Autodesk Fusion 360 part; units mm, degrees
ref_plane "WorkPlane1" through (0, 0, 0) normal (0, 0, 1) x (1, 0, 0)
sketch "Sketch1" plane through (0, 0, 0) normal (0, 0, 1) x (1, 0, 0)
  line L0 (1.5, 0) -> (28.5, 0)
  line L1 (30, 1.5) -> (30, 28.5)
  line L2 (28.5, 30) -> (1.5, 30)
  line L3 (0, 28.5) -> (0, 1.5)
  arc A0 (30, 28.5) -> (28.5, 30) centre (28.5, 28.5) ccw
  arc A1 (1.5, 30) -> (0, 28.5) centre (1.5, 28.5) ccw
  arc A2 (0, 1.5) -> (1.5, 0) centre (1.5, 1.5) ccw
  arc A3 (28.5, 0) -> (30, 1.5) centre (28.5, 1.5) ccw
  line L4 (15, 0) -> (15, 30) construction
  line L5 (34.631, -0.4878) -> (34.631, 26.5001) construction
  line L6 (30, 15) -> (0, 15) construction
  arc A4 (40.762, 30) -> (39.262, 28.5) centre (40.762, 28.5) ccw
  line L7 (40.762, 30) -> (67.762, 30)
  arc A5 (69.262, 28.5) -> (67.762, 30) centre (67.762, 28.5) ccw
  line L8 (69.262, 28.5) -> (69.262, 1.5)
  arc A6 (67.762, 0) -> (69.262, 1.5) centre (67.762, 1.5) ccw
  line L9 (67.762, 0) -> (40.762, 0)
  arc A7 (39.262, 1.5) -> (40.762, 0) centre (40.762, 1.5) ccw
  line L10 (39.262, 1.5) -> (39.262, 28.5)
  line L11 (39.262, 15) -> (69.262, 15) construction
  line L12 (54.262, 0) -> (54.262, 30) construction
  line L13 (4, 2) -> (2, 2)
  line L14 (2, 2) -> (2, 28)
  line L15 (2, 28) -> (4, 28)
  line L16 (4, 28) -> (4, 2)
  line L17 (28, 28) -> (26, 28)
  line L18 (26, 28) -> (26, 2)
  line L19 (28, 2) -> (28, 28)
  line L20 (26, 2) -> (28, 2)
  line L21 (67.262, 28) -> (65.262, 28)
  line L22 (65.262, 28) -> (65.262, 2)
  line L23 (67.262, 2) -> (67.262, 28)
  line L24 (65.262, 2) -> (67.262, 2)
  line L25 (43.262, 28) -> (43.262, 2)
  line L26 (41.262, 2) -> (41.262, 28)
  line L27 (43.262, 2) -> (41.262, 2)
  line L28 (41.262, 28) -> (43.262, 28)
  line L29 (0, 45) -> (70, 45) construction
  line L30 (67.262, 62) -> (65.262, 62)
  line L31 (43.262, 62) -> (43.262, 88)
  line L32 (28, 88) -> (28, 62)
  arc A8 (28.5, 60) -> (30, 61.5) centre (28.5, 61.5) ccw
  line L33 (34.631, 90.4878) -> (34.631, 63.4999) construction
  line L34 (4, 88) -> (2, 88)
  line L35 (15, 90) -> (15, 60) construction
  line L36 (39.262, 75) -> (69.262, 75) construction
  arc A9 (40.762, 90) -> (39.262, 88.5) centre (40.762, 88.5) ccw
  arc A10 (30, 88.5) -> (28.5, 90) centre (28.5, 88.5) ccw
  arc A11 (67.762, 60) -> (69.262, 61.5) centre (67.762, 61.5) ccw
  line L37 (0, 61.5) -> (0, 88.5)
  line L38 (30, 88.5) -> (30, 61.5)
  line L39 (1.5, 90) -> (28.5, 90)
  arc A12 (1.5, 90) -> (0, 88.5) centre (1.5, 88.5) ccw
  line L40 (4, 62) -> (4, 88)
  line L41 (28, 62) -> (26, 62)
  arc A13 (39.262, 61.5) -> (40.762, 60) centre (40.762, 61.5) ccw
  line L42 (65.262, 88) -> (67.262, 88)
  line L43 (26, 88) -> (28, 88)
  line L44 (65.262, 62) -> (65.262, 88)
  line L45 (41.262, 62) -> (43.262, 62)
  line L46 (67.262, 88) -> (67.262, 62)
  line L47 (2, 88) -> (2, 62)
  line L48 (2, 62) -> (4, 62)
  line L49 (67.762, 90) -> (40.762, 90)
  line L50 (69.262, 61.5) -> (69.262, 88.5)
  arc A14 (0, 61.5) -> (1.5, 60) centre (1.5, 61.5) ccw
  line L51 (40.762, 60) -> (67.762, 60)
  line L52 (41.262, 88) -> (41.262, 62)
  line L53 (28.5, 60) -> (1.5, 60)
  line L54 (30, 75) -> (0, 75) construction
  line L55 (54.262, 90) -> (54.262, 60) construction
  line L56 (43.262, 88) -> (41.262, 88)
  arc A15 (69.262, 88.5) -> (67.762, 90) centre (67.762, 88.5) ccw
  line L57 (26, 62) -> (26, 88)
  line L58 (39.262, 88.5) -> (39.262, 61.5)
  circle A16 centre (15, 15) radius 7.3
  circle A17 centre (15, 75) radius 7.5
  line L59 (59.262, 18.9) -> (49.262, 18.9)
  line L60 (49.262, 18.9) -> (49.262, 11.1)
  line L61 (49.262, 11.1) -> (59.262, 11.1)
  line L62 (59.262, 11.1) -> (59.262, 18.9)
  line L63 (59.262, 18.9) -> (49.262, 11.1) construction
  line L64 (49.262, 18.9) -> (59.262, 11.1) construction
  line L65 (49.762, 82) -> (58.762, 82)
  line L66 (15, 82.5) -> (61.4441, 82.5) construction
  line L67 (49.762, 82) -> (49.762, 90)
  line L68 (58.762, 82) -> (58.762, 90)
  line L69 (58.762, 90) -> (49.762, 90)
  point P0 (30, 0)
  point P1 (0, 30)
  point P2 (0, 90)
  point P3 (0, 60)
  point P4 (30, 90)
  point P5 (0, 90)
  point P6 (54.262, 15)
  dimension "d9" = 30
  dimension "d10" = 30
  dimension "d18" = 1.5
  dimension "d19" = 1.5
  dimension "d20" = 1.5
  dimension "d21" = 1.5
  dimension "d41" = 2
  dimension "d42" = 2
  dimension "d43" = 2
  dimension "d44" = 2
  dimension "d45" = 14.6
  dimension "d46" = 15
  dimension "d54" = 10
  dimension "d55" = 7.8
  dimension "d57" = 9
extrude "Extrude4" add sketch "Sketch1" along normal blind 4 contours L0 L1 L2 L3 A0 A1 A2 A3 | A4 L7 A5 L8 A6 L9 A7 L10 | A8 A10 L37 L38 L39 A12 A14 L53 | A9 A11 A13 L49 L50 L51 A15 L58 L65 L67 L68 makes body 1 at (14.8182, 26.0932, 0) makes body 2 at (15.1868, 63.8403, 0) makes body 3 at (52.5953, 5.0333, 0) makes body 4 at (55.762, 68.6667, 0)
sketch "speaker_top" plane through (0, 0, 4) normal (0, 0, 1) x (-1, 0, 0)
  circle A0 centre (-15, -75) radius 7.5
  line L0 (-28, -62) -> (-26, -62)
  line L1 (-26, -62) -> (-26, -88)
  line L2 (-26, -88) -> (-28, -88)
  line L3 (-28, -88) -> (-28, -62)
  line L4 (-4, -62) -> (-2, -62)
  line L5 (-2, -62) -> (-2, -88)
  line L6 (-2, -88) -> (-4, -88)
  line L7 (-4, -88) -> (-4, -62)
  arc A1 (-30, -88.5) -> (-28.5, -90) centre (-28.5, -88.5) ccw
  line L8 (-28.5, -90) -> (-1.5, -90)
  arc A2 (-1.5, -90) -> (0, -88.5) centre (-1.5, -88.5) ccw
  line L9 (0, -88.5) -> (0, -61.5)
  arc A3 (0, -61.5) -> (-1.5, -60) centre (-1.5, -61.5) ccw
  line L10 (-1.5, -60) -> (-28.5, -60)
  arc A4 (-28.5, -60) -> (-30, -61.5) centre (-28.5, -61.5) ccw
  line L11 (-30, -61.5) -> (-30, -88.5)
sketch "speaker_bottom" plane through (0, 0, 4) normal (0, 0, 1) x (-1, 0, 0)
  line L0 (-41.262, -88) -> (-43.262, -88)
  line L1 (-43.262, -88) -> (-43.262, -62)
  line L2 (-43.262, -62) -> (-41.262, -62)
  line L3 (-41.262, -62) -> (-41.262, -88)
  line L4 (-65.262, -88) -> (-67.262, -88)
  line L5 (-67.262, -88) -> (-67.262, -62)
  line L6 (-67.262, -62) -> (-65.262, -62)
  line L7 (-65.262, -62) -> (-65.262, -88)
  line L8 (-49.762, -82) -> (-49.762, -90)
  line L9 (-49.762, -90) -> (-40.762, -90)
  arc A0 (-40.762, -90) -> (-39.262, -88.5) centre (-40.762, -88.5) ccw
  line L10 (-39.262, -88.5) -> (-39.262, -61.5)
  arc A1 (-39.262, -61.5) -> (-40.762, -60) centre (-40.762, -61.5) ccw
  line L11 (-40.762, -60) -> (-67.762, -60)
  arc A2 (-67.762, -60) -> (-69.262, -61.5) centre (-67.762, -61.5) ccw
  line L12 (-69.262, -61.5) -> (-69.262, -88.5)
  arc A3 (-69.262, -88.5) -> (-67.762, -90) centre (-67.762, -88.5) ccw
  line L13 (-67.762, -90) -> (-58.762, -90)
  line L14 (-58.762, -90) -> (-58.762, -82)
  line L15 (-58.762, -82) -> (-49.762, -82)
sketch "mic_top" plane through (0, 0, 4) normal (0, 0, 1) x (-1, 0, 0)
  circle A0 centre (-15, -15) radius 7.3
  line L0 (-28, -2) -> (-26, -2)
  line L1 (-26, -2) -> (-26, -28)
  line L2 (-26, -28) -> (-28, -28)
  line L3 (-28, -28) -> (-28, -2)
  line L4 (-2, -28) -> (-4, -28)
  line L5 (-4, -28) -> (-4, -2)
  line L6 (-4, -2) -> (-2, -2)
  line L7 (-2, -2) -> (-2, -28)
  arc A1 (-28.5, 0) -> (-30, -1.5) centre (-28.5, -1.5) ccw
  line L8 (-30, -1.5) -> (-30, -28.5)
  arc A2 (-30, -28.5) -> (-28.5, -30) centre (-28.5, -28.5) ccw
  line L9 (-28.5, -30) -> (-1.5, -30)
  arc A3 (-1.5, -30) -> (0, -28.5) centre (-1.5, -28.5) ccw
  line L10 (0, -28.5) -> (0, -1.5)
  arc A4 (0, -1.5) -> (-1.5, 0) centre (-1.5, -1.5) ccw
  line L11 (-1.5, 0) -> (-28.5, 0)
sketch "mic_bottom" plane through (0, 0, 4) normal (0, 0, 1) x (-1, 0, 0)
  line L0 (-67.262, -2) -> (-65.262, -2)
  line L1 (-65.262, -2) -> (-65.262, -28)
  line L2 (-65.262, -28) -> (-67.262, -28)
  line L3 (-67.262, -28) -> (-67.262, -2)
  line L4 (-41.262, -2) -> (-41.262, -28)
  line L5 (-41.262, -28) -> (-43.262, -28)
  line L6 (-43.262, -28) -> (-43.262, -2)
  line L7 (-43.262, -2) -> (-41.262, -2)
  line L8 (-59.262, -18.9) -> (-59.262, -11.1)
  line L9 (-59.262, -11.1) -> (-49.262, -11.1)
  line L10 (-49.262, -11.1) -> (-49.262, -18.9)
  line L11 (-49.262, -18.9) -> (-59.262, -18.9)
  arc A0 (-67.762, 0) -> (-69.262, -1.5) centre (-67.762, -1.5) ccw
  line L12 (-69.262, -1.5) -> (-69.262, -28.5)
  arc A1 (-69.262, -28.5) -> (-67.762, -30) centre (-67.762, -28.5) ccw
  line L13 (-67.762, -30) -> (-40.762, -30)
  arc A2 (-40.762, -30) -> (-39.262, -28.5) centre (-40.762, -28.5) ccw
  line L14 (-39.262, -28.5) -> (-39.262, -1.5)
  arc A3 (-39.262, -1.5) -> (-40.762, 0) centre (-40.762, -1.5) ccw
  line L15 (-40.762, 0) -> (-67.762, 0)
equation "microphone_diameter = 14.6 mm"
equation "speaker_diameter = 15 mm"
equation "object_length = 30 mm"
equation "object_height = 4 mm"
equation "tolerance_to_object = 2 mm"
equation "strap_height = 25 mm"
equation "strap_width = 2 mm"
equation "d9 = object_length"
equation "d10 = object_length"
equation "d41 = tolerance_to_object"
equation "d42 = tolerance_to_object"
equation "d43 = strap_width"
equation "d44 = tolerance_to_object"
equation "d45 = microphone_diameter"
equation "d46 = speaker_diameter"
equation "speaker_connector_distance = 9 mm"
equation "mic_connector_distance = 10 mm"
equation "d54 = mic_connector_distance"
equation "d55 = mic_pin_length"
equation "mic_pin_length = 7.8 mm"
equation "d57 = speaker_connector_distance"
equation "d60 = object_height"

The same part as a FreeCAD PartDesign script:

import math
import FreeCAD as App
import Part
import Sketcher

doc = App.newDocument("Part")
params = doc.addObject("Spreadsheet::Sheet", "Params")
for row, (alias, value) in enumerate([
    ("sketch1_diameter", "15 mm"),
    ("sketch1_diameter2", "14.6 mm"),
    ("sketch1_radius", "1.5 mm"),
    ("sketch1_width", "2 mm"),
    ("sketch1_width2", "10 mm"),
    ("pad1_length", "4 mm"),
], start=1):
    params.set(f"A{row}", alias)
    params.set(f"B{row}", "=" + value)
    params.setAlias(f"B{row}", alias)

body = doc.addObject("PartDesign::Body", "Body")
body.AllowCompound = True

sketch1 = body.newObject("Sketcher::SketchObject", "Sketch")
sketch1.AttachmentSupport = (doc.getObject("XY_Plane"), [""])
sketch1.MapMode = "FlatFace"
sketch1.addGeometry(Part.ArcOfCircle(Part.Circle(App.Vector(1.5, 1.5, 0), App.Vector(0, 0, 1), 1.5), math.radians(180), math.radians(270)), False)
sketch1.addGeometry(Part.LineSegment(App.Vector(1.5, 0, 0), App.Vector(28.5, 0, 0)), False)
sketch1.addGeometry(Part.ArcOfCircle(Part.Circle(App.Vector(28.5, 1.5, 0), App.Vector(0, 0, 1), 1.5), math.radians(-90), math.radians(0)), False)
sketch1.addGeometry(Part.LineSegment(App.Vector(30, 1.5, 0), App.Vector(30, 28.5, 0)), False)
sketch1.addGeometry(Part.ArcOfCircle(Part.Circle(App.Vector(28.5, 28.5, 0), App.Vector(0, 0, 1), 1.5), math.radians(0), math.radians(90)), False)
sketch1.addGeometry(Part.LineSegment(App.Vector(28.5, 30, 0), App.Vector(1.5, 30, 0)), False)
sketch1.addGeometry(Part.ArcOfCircle(Part.Circle(App.Vector(1.5, 28.5, 0), App.Vector(0, 0, 1), 1.5), math.radians(90), math.radians(180)), False)
sketch1.addGeometry(Part.LineSegment(App.Vector(0, 28.5, 0), App.Vector(0, 1.5, 0)), False)
sketch1.addGeometry(Part.LineSegment(App.Vector(4, 28, 0), App.Vector(4, 2, 0)), False)
sketch1.addGeometry(Part.LineSegment(App.Vector(4, 2, 0), App.Vector(2, 2, 0)), False)
sketch1.addGeometry(Part.LineSegment(App.Vector(2, 2, 0), App.Vector(2, 28, 0)), False)
sketch1.addGeometry(Part.LineSegment(App.Vector(2, 28, 0), App.Vector(4, 28, 0)), False)
sketch1.addGeometry(Part.Circle(App.Vector(15, 15, 0), App.Vector(0, 0, 1), 7.3), False)
sketch1.addGeometry(Part.LineSegment(App.Vector(26, 28, 0), App.Vector(28, 28, 0)), False)
sketch1.addGeometry(Part.LineSegment(App.Vector(28, 28, 0), App.Vector(28, 2, 0)), False)
sketch1.addGeometry(Part.LineSegment(App.Vector(28, 2, 0), App.Vector(26, 2, 0)), False)
sketch1.addGeometry(Part.LineSegment(App.Vector(26, 2, 0), App.Vector(26, 28, 0)), False)
sketch1.addGeometry(Part.LineSegment(App.Vector(67.8, 30, 0), App.Vector(40.8, 30, 0)), False)
sketch1.addGeometry(Part.ArcOfCircle(Part.Circle(App.Vector(40.8, 28.5, 0), App.Vector(0, 0, 1), 1.5), math.radians(90), math.radians(180)), False)
sketch1.addGeometry(Part.LineSegment(App.Vector(39.3, 28.5, 0), App.Vector(39.3, 1.5, 0)), False)
sketch1.addGeometry(Part.ArcOfCircle(Part.Circle(App.Vector(40.8, 1.5, 0), App.Vector(0, 0, 1), 1.5), math.radians(180), math.radians(270)), False)
sketch1.addGeometry(Part.LineSegment(App.Vector(40.8, 0, 0), App.Vector(67.8, 0, 0)), False)
sketch1.addGeometry(Part.ArcOfCircle(Part.Circle(App.Vector(67.8, 1.5, 0), App.Vector(0, 0, 1), 1.5), math.radians(-90), math.radians(0)), False)
sketch1.addGeometry(Part.LineSegment(App.Vector(69.3, 1.5, 0), App.Vector(69.3, 28.5, 0)), False)
sketch1.addGeometry(Part.ArcOfCircle(Part.Circle(App.Vector(67.8, 28.5, 0), App.Vector(0, 0, 1), 1.5), math.radians(0), math.radians(90)), False)
sketch1.addGeometry(Part.LineSegment(App.Vector(41.3, 28, 0), App.Vector(43.3, 28, 0)), False)
sketch1.addGeometry(Part.LineSegment(App.Vector(43.3, 28, 0), App.Vector(43.3, 2, 0)), False)
sketch1.addGeometry(Part.LineSegment(App.Vector(43.3, 2, 0), App.Vector(41.3, 2, 0)), False)
sketch1.addGeometry(Part.LineSegment(App.Vector(41.3, 2, 0), App.Vector(41.3, 28, 0)), False)
sketch1.addGeometry(Part.LineSegment(App.Vector(49.3, 18.9, 0), App.Vector(59.3, 18.9, 0)), False)
sketch1.addGeometry(Part.LineSegment(App.Vector(59.3, 18.9, 0), App.Vector(59.3, 11.1, 0)), False)
sketch1.addGeometry(Part.LineSegment(App.Vector(59.3, 11.1, 0), App.Vector(49.3, 11.1, 0)), False)
sketch1.addGeometry(Part.LineSegment(App.Vector(49.3, 11.1, 0), App.Vector(49.3, 18.9, 0)), False)
sketch1.addGeometry(Part.LineSegment(App.Vector(65.3, 28, 0), App.Vector(67.3, 28, 0)), False)
sketch1.addGeometry(Part.LineSegment(App.Vector(67.3, 28, 0), App.Vector(67.3, 2, 0)), False)
sketch1.addGeometry(Part.LineSegment(App.Vector(67.3, 2, 0), App.Vector(65.3, 2, 0)), False)
sketch1.addGeometry(Part.LineSegment(App.Vector(65.3, 2, 0), App.Vector(65.3, 28, 0)), False)
sketch1.addGeometry(Part.LineSegment(App.Vector(1.5, 60, 0), App.Vector(28.5, 60, 0)), False)
sketch1.addGeometry(Part.ArcOfCircle(Part.Circle(App.Vector(28.5, 61.5, 0), App.Vector(0, 0, 1), 1.5), math.radians(-90), math.radians(0)), False)
sketch1.addGeometry(Part.LineSegment(App.Vector(30, 61.5, 0), App.Vector(30, 88.5, 0)), False)
sketch1.addGeometry(Part.ArcOfCircle(Part.Circle(App.Vector(28.5, 88.5, 0), App.Vector(0, 0, 1), 1.5), math.radians(0), math.radians(90)), False)
sketch1.addGeometry(Part.LineSegment(App.Vector(28.5, 90, 0), App.Vector(1.5, 90, 0)), False)
sketch1.addGeometry(Part.ArcOfCircle(Part.Circle(App.Vector(1.5, 88.5, 0), App.Vector(0, 0, 1), 1.5), math.radians(90), math.radians(180)), False)
sketch1.addGeometry(Part.LineSegment(App.Vector(0, 88.5, 0), App.Vector(0, 61.5, 0)), False)
sketch1.addGeometry(Part.ArcOfCircle(Part.Circle(App.Vector(1.5, 61.5, 0), App.Vector(0, 0, 1), 1.5), math.radians(180), math.radians(270)), False)
sketch1.addGeometry(Part.LineSegment(App.Vector(2, 88, 0), App.Vector(4, 88, 0)), False)
sketch1.addGeometry(Part.LineSegment(App.Vector(4, 88, 0), App.Vector(4, 62, 0)), False)
sketch1.addGeometry(Part.LineSegment(App.Vector(4, 62, 0), App.Vector(2, 62, 0)), False)
sketch1.addGeometry(Part.LineSegment(App.Vector(2, 62, 0), App.Vector(2, 88, 0)), False)
sketch1.addGeometry(Part.Circle(App.Vector(15, 75, 0), App.Vector(0, 0, 1), 7.5), False)
sketch1.addGeometry(Part.LineSegment(App.Vector(26, 88, 0), App.Vector(28, 88, 0)), False)
sketch1.addGeometry(Part.LineSegment(App.Vector(28, 88, 0), App.Vector(28, 62, 0)), False)
sketch1.addGeometry(Part.LineSegment(App.Vector(28, 62, 0), App.Vector(26, 62, 0)), False)
sketch1.addGeometry(Part.LineSegment(App.Vector(26, 62, 0), App.Vector(26, 88, 0)), False)
sketch1.addGeometry(Part.LineSegment(App.Vector(49.8, 90, 0), App.Vector(40.8, 90, 0)), False)
sketch1.addGeometry(Part.ArcOfCircle(Part.Circle(App.Vector(40.8, 88.5, 0), App.Vector(0, 0, 1), 1.5), math.radians(90), math.radians(180)), False)
sketch1.addGeometry(Part.LineSegment(App.Vector(39.3, 88.5, 0), App.Vector(39.3, 61.5, 0)), False)
sketch1.addGeometry(Part.ArcOfCircle(Part.Circle(App.Vector(40.8, 61.5, 0), App.Vector(0, 0, 1), 1.5), math.radians(180), math.radians(270)), False)
sketch1.addGeometry(Part.LineSegment(App.Vector(40.8, 60, 0), App.Vector(67.8, 60, 0)), False)
sketch1.addGeometry(Part.ArcOfCircle(Part.Circle(App.Vector(67.8, 61.5, 0), App.Vector(0, 0, 1), 1.5), math.radians(-90), math.radians(0)), False)
sketch1.addGeometry(Part.LineSegment(App.Vector(69.3, 61.5, 0), App.Vector(69.3, 88.5, 0)), False)
sketch1.addGeometry(Part.ArcOfCircle(Part.Circle(App.Vector(67.8, 88.5, 0), App.Vector(0, 0, 1), 1.5), math.radians(0), math.radians(90)), False)
sketch1.addGeometry(Part.LineSegment(App.Vector(67.8, 90, 0), App.Vector(58.8, 90, 0)), False)
sketch1.addGeometry(Part.LineSegment(App.Vector(58.8, 90, 0), App.Vector(58.8, 82, 0)), False)
sketch1.addGeometry(Part.LineSegment(App.Vector(58.8, 82, 0), App.Vector(49.8, 82, 0)), False)
sketch1.addGeometry(Part.LineSegment(App.Vector(49.8, 82, 0), App.Vector(49.8, 90, 0)), False)
sketch1.addGeometry(Part.LineSegment(App.Vector(43.3, 88, 0), App.Vector(43.3, 62, 0)), False)
sketch1.addGeometry(Part.LineSegment(App.Vector(43.3, 62, 0), App.Vector(41.3, 62, 0)), False)
sketch1.addGeometry(Part.LineSegment(App.Vector(41.3, 62, 0), App.Vector(41.3, 88, 0)), False)
sketch1.addGeometry(Part.LineSegment(App.Vector(41.3, 88, 0), App.Vector(43.3, 88, 0)), False)
sketch1.addGeometry(Part.LineSegment(App.Vector(67.3, 88, 0), App.Vector(67.3, 62, 0)), False)
sketch1.addGeometry(Part.LineSegment(App.Vector(67.3, 62, 0), App.Vector(65.3, 62, 0)), False)
sketch1.addGeometry(Part.LineSegment(App.Vector(65.3, 62, 0), App.Vector(65.3, 88, 0)), False)
sketch1.addGeometry(Part.LineSegment(App.Vector(65.3, 88, 0), App.Vector(67.3, 88, 0)), False)
sketch1.addConstraint(Sketcher.Constraint("Tangent", 0, 2, 1, 1))
sketch1.addConstraint(Sketcher.Constraint("Tangent", 1, 2, 2, 1))
sketch1.addConstraint(Sketcher.Constraint("Tangent", 2, 2, 3, 1))
sketch1.addConstraint(Sketcher.Constraint("Tangent", 3, 2, 4, 1))
sketch1.addConstraint(Sketcher.Constraint("Tangent", 4, 2, 5, 1))
sketch1.addConstraint(Sketcher.Constraint("Tangent", 5, 2, 6, 1))
sketch1.addConstraint(Sketcher.Constraint("Tangent", 6, 2, 7, 1))
sketch1.addConstraint(Sketcher.Constraint("Tangent", 7, 2, 0, 1))
sketch1.addConstraint(Sketcher.Constraint("Coincident", 8, 2, 9, 1))
sketch1.addConstraint(Sketcher.Constraint("Coincident", 9, 2, 10, 1))
sketch1.addConstraint(Sketcher.Constraint("Coincident", 10, 2, 11, 1))
sketch1.addConstraint(Sketcher.Constraint("Coincident", 11, 2, 8, 1))
sketch1.addConstraint(Sketcher.Constraint("Coincident", 13, 2, 14, 1))
sketch1.addConstraint(Sketcher.Constraint("Coincident", 14, 2, 15, 1))
sketch1.addConstraint(Sketcher.Constraint("Coincident", 15, 2, 16, 1))
sketch1.addConstraint(Sketcher.Constraint("Coincident", 16, 2, 13, 1))
sketch1.addConstraint(Sketcher.Constraint("Tangent", 17, 2, 18, 1))
sketch1.addConstraint(Sketcher.Constraint("Tangent", 18, 2, 19, 1))
sketch1.addConstraint(Sketcher.Constraint("Tangent", 19, 2, 20, 1))
sketch1.addConstraint(Sketcher.Constraint("Tangent", 20, 2, 21, 1))
sketch1.addConstraint(Sketcher.Constraint("Tangent", 21, 2, 22, 1))
sketch1.addConstraint(Sketcher.Constraint("Tangent", 22, 2, 23, 1))
sketch1.addConstraint(Sketcher.Constraint("Tangent", 23, 2, 24, 1))
sketch1.addConstraint(Sketcher.Constraint("Tangent", 24, 2, 17, 1))
sketch1.addConstraint(Sketcher.Constraint("Coincident", 25, 2, 26, 1))
sketch1.addConstraint(Sketcher.Constraint("Coincident", 26, 2, 27, 1))
sketch1.addConstraint(Sketcher.Constraint("Coincident", 27, 2, 28, 1))
sketch1.addConstraint(Sketcher.Constraint("Coincident", 28, 2, 25, 1))
sketch1.addConstraint(Sketcher.Constraint("Coincident", 29, 2, 30, 1))
sketch1.addConstraint(Sketcher.Constraint("Coincident", 30, 2, 31, 1))
sketch1.addConstraint(Sketcher.Constraint("Coincident", 31, 2, 32, 1))
sketch1.addConstraint(Sketcher.Constraint("Coincident", 32, 2, 29, 1))
sketch1.addConstraint(Sketcher.Constraint("Coincident", 33, 2, 34, 1))
sketch1.addConstraint(Sketcher.Constraint("Coincident", 34, 2, 35, 1))
sketch1.addConstraint(Sketcher.Constraint("Coincident", 35, 2, 36, 1))
sketch1.addConstraint(Sketcher.Constraint("Coincident", 36, 2, 33, 1))
sketch1.addConstraint(Sketcher.Constraint("Tangent", 37, 2, 38, 1))
sketch1.addConstraint(Sketcher.Constraint("Tangent", 38, 2, 39, 1))
sketch1.addConstraint(Sketcher.Constraint("Tangent", 39, 2, 40, 1))
sketch1.addConstraint(Sketcher.Constraint("Tangent", 40, 2, 41, 1))
sketch1.addConstraint(Sketcher.Constraint("Tangent", 41, 2, 42, 1))
sketch1.addConstraint(Sketcher.Constraint("Tangent", 42, 2, 43, 1))
sketch1.addConstraint(Sketcher.Constraint("Tangent", 43, 2, 44, 1))
sketch1.addConstraint(Sketcher.Constraint("Tangent", 44, 2, 37, 1))
sketch1.addConstraint(Sketcher.Constraint("Coincident", 45, 2, 46, 1))
sketch1.addConstraint(Sketcher.Constraint("Coincident", 46, 2, 47, 1))
sketch1.addConstraint(Sketcher.Constraint("Coincident", 47, 2, 48, 1))
sketch1.addConstraint(Sketcher.Constraint("Coincident", 48, 2, 45, 1))
sketch1.addConstraint(Sketcher.Constraint("Coincident", 50, 2, 51, 1))
sketch1.addConstraint(Sketcher.Constraint("Coincident", 51, 2, 52, 1))
sketch1.addConstraint(Sketcher.Constraint("Coincident", 52, 2, 53, 1))
sketch1.addConstraint(Sketcher.Constraint("Coincident", 53, 2, 50, 1))
sketch1.addConstraint(Sketcher.Constraint("Tangent", 54, 2, 55, 1))
sketch1.addConstraint(Sketcher.Constraint("Tangent", 55, 2, 56, 1))
sketch1.addConstraint(Sketcher.Constraint("Tangent", 56, 2, 57, 1))
sketch1.addConstraint(Sketcher.Constraint("Tangent", 57, 2, 58, 1))
sketch1.addConstraint(Sketcher.Constraint("Tangent", 58, 2, 59, 1))
sketch1.addConstraint(Sketcher.Constraint("Tangent", 59, 2, 60, 1))
sketch1.addConstraint(Sketcher.Constraint("Tangent", 60, 2, 61, 1))
sketch1.addConstraint(Sketcher.Constraint("Tangent", 61, 2, 62, 1))
sketch1.addConstraint(Sketcher.Constraint("Coincident", 62, 2, 63, 1))
sketch1.addConstraint(Sketcher.Constraint("Coincident", 63, 2, 64, 1))
sketch1.addConstraint(Sketcher.Constraint("Coincident", 64, 2, 65, 1))
sketch1.addConstraint(Sketcher.Constraint("Coincident", 65, 2, 54, 1))
sketch1.addConstraint(Sketcher.Constraint("Coincident", 66, 2, 67, 1))
sketch1.addConstraint(Sketcher.Constraint("Coincident", 67, 2, 68, 1))
sketch1.addConstraint(Sketcher.Constraint("Coincident", 68, 2, 69, 1))
sketch1.addConstraint(Sketcher.Constraint("Coincident", 69, 2, 66, 1))
sketch1.addConstraint(Sketcher.Constraint("Coincident", 70, 2, 71, 1))
sketch1.addConstraint(Sketcher.Constraint("Coincident", 71, 2, 72, 1))
sketch1.addConstraint(Sketcher.Constraint("Coincident", 72, 2, 73, 1))
sketch1.addConstraint(Sketcher.Constraint("Coincident", 73, 2, 70, 1))
sketch1.addConstraint(Sketcher.Constraint("Horizontal", 1))
sketch1.addConstraint(Sketcher.Constraint("Vertical", 3))
sketch1.addConstraint(Sketcher.Constraint("Horizontal", 5))
sketch1.addConstraint(Sketcher.Constraint("Vertical", 7))
sketch1.addConstraint(Sketcher.Constraint("Vertical", 8))
sketch1.addConstraint(Sketcher.Constraint("Horizontal", 9))
sketch1.addConstraint(Sketcher.Constraint("Vertical", 10))
sketch1.addConstraint(Sketcher.Constraint("Horizontal", 11))
sketch1.addConstraint(Sketcher.Constraint("Horizontal", 13))
sketch1.addConstraint(Sketcher.Constraint("Vertical", 14))
sketch1.addConstraint(Sketcher.Constraint("Horizontal", 15))
sketch1.addConstraint(Sketcher.Constraint("Vertical", 16))
sketch1.addConstraint(Sketcher.Constraint("Horizontal", 17))
sketch1.addConstraint(Sketcher.Constraint("Vertical", 19))
sketch1.addConstraint(Sketcher.Constraint("Horizontal", 21))
sketch1.addConstraint(Sketcher.Constraint("Vertical", 23))
sketch1.addConstraint(Sketcher.Constraint("Horizontal", 25))
sketch1.addConstraint(Sketcher.Constraint("Vertical", 26))
sketch1.addConstraint(Sketcher.Constraint("Horizontal", 27))
sketch1.addConstraint(Sketcher.Constraint("Vertical", 28))
sketch1.addConstraint(Sketcher.Constraint("Horizontal", 29))
sketch1.addConstraint(Sketcher.Constraint("Vertical", 30))
sketch1.addConstraint(Sketcher.Constraint("Horizontal", 31))
sketch1.addConstraint(Sketcher.Constraint("Vertical", 32))
sketch1.addConstraint(Sketcher.Constraint("Horizontal", 33))
sketch1.addConstraint(Sketcher.Constraint("Vertical", 34))
sketch1.addConstraint(Sketcher.Constraint("Horizontal", 35))
sketch1.addConstraint(Sketcher.Constraint("Vertical", 36))
sketch1.addConstraint(Sketcher.Constraint("Horizontal", 37))
sketch1.addConstraint(Sketcher.Constraint("Vertical", 39))
sketch1.addConstraint(Sketcher.Constraint("Horizontal", 41))
sketch1.addConstraint(Sketcher.Constraint("Vertical", 43))
sketch1.addConstraint(Sketcher.Constraint("Horizontal", 45))
sketch1.addConstraint(Sketcher.Constraint("Vertical", 46))
sketch1.addConstraint(Sketcher.Constraint("Horizontal", 47))
sketch1.addConstraint(Sketcher.Constraint("Vertical", 48))
sketch1.addConstraint(Sketcher.Constraint("Horizontal", 50))
sketch1.addConstraint(Sketcher.Constraint("Vertical", 51))
sketch1.addConstraint(Sketcher.Constraint("Horizontal", 52))
sketch1.addConstraint(Sketcher.Constraint("Vertical", 53))
sketch1.addConstraint(Sketcher.Constraint("Horizontal", 54))
sketch1.addConstraint(Sketcher.Constraint("Vertical", 56))
sketch1.addConstraint(Sketcher.Constraint("Horizontal", 58))
sketch1.addConstraint(Sketcher.Constraint("Vertical", 60))
sketch1.addConstraint(Sketcher.Constraint("Horizontal", 62))
sketch1.addConstraint(Sketcher.Constraint("Vertical", 63))
sketch1.addConstraint(Sketcher.Constraint("Horizontal", 64))
sketch1.addConstraint(Sketcher.Constraint("Vertical", 65))
sketch1.addConstraint(Sketcher.Constraint("Vertical", 66))
sketch1.addConstraint(Sketcher.Constraint("Horizontal", 67))
sketch1.addConstraint(Sketcher.Constraint("Vertical", 68))
sketch1.addConstraint(Sketcher.Constraint("Horizontal", 69))
sketch1.addConstraint(Sketcher.Constraint("Vertical", 70))
sketch1.addConstraint(Sketcher.Constraint("Horizontal", 71))
sketch1.addConstraint(Sketcher.Constraint("Vertical", 72))
sketch1.addConstraint(Sketcher.Constraint("Horizontal", 73))
sketch1.addConstraint(Sketcher.Constraint("Equal", 0, 2))
sketch1.addConstraint(Sketcher.Constraint("Equal", 2, 4))
sketch1.addConstraint(Sketcher.Constraint("Equal", 4, 6))
sketch1.addConstraint(Sketcher.Constraint("Equal", 6, 18))
sketch1.addConstraint(Sketcher.Constraint("Equal", 18, 20))
sketch1.addConstraint(Sketcher.Constraint("Equal", 20, 22))
sketch1.addConstraint(Sketcher.Constraint("Equal", 22, 24))
sketch1.addConstraint(Sketcher.Constraint("Equal", 24, 38))
sketch1.addConstraint(Sketcher.Constraint("Equal", 38, 40))
sketch1.addConstraint(Sketcher.Constraint("Equal", 40, 42))
sketch1.addConstraint(Sketcher.Constraint("Equal", 42, 44))
sketch1.addConstraint(Sketcher.Constraint("Equal", 44, 55))
sketch1.addConstraint(Sketcher.Constraint("Equal", 55, 57))
sketch1.addConstraint(Sketcher.Constraint("Equal", 57, 59))
sketch1.addConstraint(Sketcher.Constraint("Equal", 59, 61))
sketch1.addConstraint(Sketcher.Constraint("PointOnObject", 0, 2, -1))
sketch1.addConstraint(Sketcher.Constraint("PointOnObject", 6, 2, -2))
sketch1.addConstraint(Sketcher.Constraint("PointOnObject", 20, 2, -1))
sketch1.addConstraint(Sketcher.Constraint("PointOnObject", 42, 2, -2))
sketch1.addConstraint(Sketcher.Constraint("Horizontal", 6, 3, 18, 3))
sketch1.addConstraint(Sketcher.Constraint("Horizontal", 42, 3, 55, 3))
sketch1.addConstraint(Sketcher.Constraint("Horizontal", 44, 3, 57, 3))
sketch1.addConstraint(Sketcher.Constraint("Horizontal", 55, 3, 61, 3))
sketch1.addConstraint(Sketcher.Constraint("Horizontal", 11, 2, 13, 2))
sketch1.addConstraint(Sketcher.Constraint("Horizontal", 9, 2, 14, 2))
sketch1.addConstraint(Sketcher.Constraint("Horizontal", 16, 2, 25, 2))
sketch1.addConstraint(Sketcher.Constraint("Horizontal", 15, 2, 26, 2))
sketch1.addConstraint(Sketcher.Constraint("Horizontal", 28, 2, 33, 2))
sketch1.addConstraint(Sketcher.Constraint("Horizontal", 27, 2, 34, 2))
sketch1.addConstraint(Sketcher.Constraint("Horizontal", 48, 2, 50, 2))
sketch1.addConstraint(Sketcher.Constraint("Horizontal", 47, 2, 51, 2))
sketch1.addConstraint(Sketcher.Constraint("Horizontal", 52, 2, 66, 2))
sketch1.addConstraint(Sketcher.Constraint("Horizontal", 53, 2, 68, 2))
sketch1.addConstraint(Sketcher.Constraint("Horizontal", 67, 2, 70, 2))
sketch1.addConstraint(Sketcher.Constraint("Horizontal", 69, 2, 72, 2))
sketch1.addConstraint(Sketcher.Constraint("Vertical", 4, 3, 38, 3))
sketch1.addConstraint(Sketcher.Constraint("Vertical", 12, 3, 49, 3))
sketch1.addConstraint(Sketcher.Constraint("Vertical", 20, 3, 55, 3))
sketch1.addConstraint(Sketcher.Constraint("Vertical", 24, 3, 59, 3))
sketch1.addConstraint(Sketcher.Constraint("Vertical", 11, 2, 45, 2))
sketch1.addConstraint(Sketcher.Constraint("Vertical", 10, 2, 47, 2))
sketch1.addConstraint(Sketcher.Constraint("Vertical", 14, 2, 50, 2))
sketch1.addConstraint(Sketcher.Constraint("Vertical", 16, 2, 52, 2))
sketch1.addConstraint(Sketcher.Constraint("Vertical", 26, 2, 66, 2))
sketch1.addConstraint(Sketcher.Constraint("Vertical", 28, 2, 67, 2))
sketch1.addConstraint(Sketcher.Constraint("Vertical", 34, 2, 70, 2))
sketch1.addConstraint(Sketcher.Constraint("Vertical", 36, 2, 71, 2))
sketch1.addConstraint(Sketcher.Constraint("Equal", 11, 13))
sketch1.addConstraint(Sketcher.Constraint("Equal", 5, 17))
sketch1.addConstraint(Sketcher.Constraint("Equal", 15, 25))
sketch1.addConstraint(Sketcher.Constraint("Equal", 27, 33))
sketch1.addConstraint(Sketcher.Constraint("Equal", 54, 62))
sketch1.addConstraint(Sketcher.Constraint("Equal", 62, 64))
sketch1.addConstraint(Sketcher.Constraint("Equal", 58, 3))
sketch1.addConstraint(Sketcher.Constraint("Equal", 23, 39))
sketch1.addConstraint(Sketcher.Constraint("Equal", 36, 46))
sketch1.addConstraint(Sketcher.Constraint("Diameter", 49, 15.0))
sketch1.addConstraint(Sketcher.Constraint("Diameter", 12, 14.6))
sketch1.addConstraint(Sketcher.Constraint("Radius", 0, 1.5))
sketch1.addConstraint(Sketcher.Constraint("DistanceX", 9, 2, 9, 1, 2.0))
sketch1.addConstraint(Sketcher.Constraint("DistanceX", 29, 1, 29, 2, 10.0))
sketch1.addConstraint(Sketcher.Constraint("DistanceX", 54, 2, 54, 1, 9.0))
sketch1.addConstraint(Sketcher.Constraint("DistanceY", 30, 2, 30, 1, 7.8))
sketch1.addConstraint(Sketcher.Constraint("DistanceX", -1, 1, 12, 3, 15.0))
sketch1.addConstraint(Sketcher.Constraint("DistanceY", -1, 1, 12, 3, 15.0))
sketch1.addConstraint(Sketcher.Constraint("DistanceY", -1, 1, 8, 2, 2.0))
sketch1.addConstraint(Sketcher.Constraint("DistanceX", -1, 1, 9, 2, 2.0))
sketch1.addConstraint(Sketcher.Constraint("DistanceY", 8, 2, 8, 1, 26.0))
sketch1.addConstraint(Sketcher.Constraint("DistanceY", 63, 2, 63, 1, 8.0))
sketch1.addConstraint(Sketcher.Constraint("DistanceY", -1, 1, 49, 3, 75.0))
sketch1.addConstraint(Sketcher.Constraint("DistanceX", -1, 1, 13, 2, 28.0))
sketch1.addConstraint(Sketcher.Constraint("DistanceY", -1, 1, 37, 2, 60.0))
sketch1.addConstraint(Sketcher.Constraint("DistanceY", -1, 1, 45, 2, 88.0))
sketch1.addConstraint(Sketcher.Constraint("DistanceY", -1, 1, 29, 2, 18.9))
sketch1.addConstraint(Sketcher.Constraint("DistanceX", -1, 1, 18, 3, 40.762))
sketch1.addConstraint(Sketcher.Constraint("DistanceX", -1, 1, 25, 2, 43.262))
sketch1.addConstraint(Sketcher.Constraint("DistanceX", -1, 1, 29, 2, 59.262))
sketch1.addConstraint(Sketcher.Constraint("DistanceX", -1, 1, 33, 2, 67.262))
sketch1.setExpression("Constraints[184]", "Params.sketch1_diameter")
sketch1.setExpression("Constraints[185]", "Params.sketch1_diameter2")
sketch1.setExpression("Constraints[186]", "Params.sketch1_radius")
sketch1.setExpression("Constraints[187]", "Params.sketch1_width")
sketch1.setExpression("Constraints[188]", "Params.sketch1_width2")
pad1 = body.newObject("PartDesign::Pad", "Pad")
pad1.Profile = sketch1
pad1.setExpression("Length", "Params.pad1_length")

doc.recompute()
